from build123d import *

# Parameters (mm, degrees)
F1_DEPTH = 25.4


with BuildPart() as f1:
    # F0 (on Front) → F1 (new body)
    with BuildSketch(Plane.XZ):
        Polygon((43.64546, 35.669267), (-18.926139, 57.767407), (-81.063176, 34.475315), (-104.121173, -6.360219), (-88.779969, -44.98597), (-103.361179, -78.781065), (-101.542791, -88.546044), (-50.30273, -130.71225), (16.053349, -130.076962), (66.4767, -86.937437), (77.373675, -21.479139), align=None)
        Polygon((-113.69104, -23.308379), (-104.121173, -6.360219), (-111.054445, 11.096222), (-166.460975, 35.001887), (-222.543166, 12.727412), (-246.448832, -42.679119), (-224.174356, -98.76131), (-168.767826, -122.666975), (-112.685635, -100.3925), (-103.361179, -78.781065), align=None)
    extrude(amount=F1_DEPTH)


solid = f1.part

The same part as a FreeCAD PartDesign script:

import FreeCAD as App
import Part
import Sketcher
from FreeCAD import Vector
Q = App.Units.Quantity

doc = App.newDocument("Part")
body = doc.addObject("PartDesign::Body", "Body")
body.AllowCompound = True

sketch1 = body.newObject("Sketcher::SketchObject", "Sketch")
sketch1.AttachmentSupport = (doc.getObject("XZ_Plane"), [""])
sketch1.MapMode = "FlatFace"
sketch1.addGeometry(Part.LineSegment(Vector(43.64546, 35.669267, 0), Vector(-18.926139, 57.767407, 0)), False)
sketch1.addGeometry(Part.LineSegment(Vector(-18.926139, 57.767407, 0), Vector(-81.063176, 34.475315, 0)), False)
sketch1.addGeometry(Part.LineSegment(Vector(-81.063176, 34.475315, 0), Vector(-104.121173, -6.360219, 0)), False)
sketch1.addGeometry(Part.LineSegment(Vector(-104.121173, -6.360219, 0), Vector(-88.779969, -44.98597, 0)), False)
sketch1.addGeometry(Part.LineSegment(Vector(-88.779969, -44.98597, 0), Vector(-103.361179, -78.781065, 0)), False)
sketch1.addGeometry(Part.LineSegment(Vector(-103.361179, -78.781065, 0), Vector(-101.542791, -88.546044, 0)), False)
sketch1.addGeometry(Part.LineSegment(Vector(-101.542791, -88.546044, 0), Vector(-50.30273, -130.71225, 0)), False)
sketch1.addGeometry(Part.LineSegment(Vector(-50.30273, -130.71225, 0), Vector(16.053349, -130.076962, 0)), False)
sketch1.addGeometry(Part.LineSegment(Vector(16.053349, -130.076962, 0), Vector(66.4767, -86.937437, 0)), False)
sketch1.addGeometry(Part.LineSegment(Vector(66.4767, -86.937437, 0), Vector(77.373675, -21.479139, 0)), False)
sketch1.addGeometry(Part.LineSegment(Vector(77.373675, -21.479139, 0), Vector(43.64546, 35.669267, 0)), False)
sketch1.addGeometry(Part.LineSegment(Vector(-113.69104, -23.308379, 0), Vector(-104.121173, -6.360219, 0)), False)
sketch1.addGeometry(Part.LineSegment(Vector(-104.121173, -6.360219, 0), Vector(-111.054445, 11.096222, 0)), False)
sketch1.addGeometry(Part.LineSegment(Vector(-111.054445, 11.096222, 0), Vector(-166.460975, 35.001887, 0)), False)
sketch1.addGeometry(Part.LineSegment(Vector(-166.460975, 35.001887, 0), Vector(-222.543166, 12.727412, 0)), False)
sketch1.addGeometry(Part.LineSegment(Vector(-222.543166, 12.727412, 0), Vector(-246.448832, -42.679119, 0)), False)
sketch1.addGeometry(Part.LineSegment(Vector(-246.448832, -42.679119, 0), Vector(-224.174356, -98.76131, 0)), False)
sketch1.addGeometry(Part.LineSegment(Vector(-224.174356, -98.76131, 0), Vector(-168.767826, -122.666975, 0)), False)
sketch1.addGeometry(Part.LineSegment(Vector(-168.767826, -122.666975, 0), Vector(-112.685635, -100.3925, 0)), False)
sketch1.addGeometry(Part.LineSegment(Vector(-112.685635, -100.3925, 0), Vector(-103.361179, -78.781065, 0)), False)
sketch1.addGeometry(Part.LineSegment(Vector(-103.361179, -78.781065, 0), Vector(-113.69104, -23.308379, 0)), False)
sketch1.addConstraint(Sketcher.Constraint("Coincident", 0, 2, 1, 1))
sketch1.addConstraint(Sketcher.Constraint("Coincident", 1, 2, 2, 1))
sketch1.addConstraint(Sketcher.Constraint("Coincident", 2, 2, 3, 1))
sketch1.addConstraint(Sketcher.Constraint("Coincident", 3, 2, 4, 1))
sketch1.addConstraint(Sketcher.Constraint("Coincident", 4, 2, 5, 1))
sketch1.addConstraint(Sketcher.Constraint("Coincident", 5, 2, 6, 1))
sketch1.addConstraint(Sketcher.Constraint("Coincident", 6, 2, 7, 1))
sketch1.addConstraint(Sketcher.Constraint("Coincident", 7, 2, 8, 1))
sketch1.addConstraint(Sketcher.Constraint("Coincident", 8, 2, 9, 1))
sketch1.addConstraint(Sketcher.Constraint("Coincident", 9, 2, 10, 1))
sketch1.addConstraint(Sketcher.Constraint("Coincident", 10, 2, 0, 1))
sketch1.addConstraint(Sketcher.Constraint("Coincident", 11, 2, 12, 1))
sketch1.addConstraint(Sketcher.Constraint("Coincident", 12, 2, 13, 1))
sketch1.addConstraint(Sketcher.Constraint("Coincident", 13, 2, 14, 1))
sketch1.addConstraint(Sketcher.Constraint("Coincident", 14, 2, 15, 1))
sketch1.addConstraint(Sketcher.Constraint("Coincident", 15, 2, 16, 1))
sketch1.addConstraint(Sketcher.Constraint("Coincident", 16, 2, 17, 1))
sketch1.addConstraint(Sketcher.Constraint("Coincident", 17, 2, 18, 1))
sketch1.addConstraint(Sketcher.Constraint("Coincident", 18, 2, 19, 1))
sketch1.addConstraint(Sketcher.Constraint("Coincident", 19, 2, 20, 1))
sketch1.addConstraint(Sketcher.Constraint("Coincident", 20, 2, 11, 1))
sketch1.addConstraint(Sketcher.Constraint("Coincident", 11, 2, 2, 2))
sketch1.addConstraint(Sketcher.Constraint("Coincident", 19, 2, 4, 2))
sketch1.addConstraint(Sketcher.Constraint("DistanceX", -1, 1, 8, 2, 66.4767))
sketch1.addConstraint(Sketcher.Constraint("DistanceY", 18, 2, -1, 1, 100.3925))
sketch1.addConstraint(Sketcher.Constraint("DistanceY", 8, 2, 9, 2, 65.458298))
sketch1.addConstraint(Sketcher.Constraint("DistanceX", 0, 2, 10, 2, 62.571599))
sketch1.addConstraint(Sketcher.Constraint("DistanceX", 13, 2, 2, 2, 62.339802))
sketch1.addConstraint(Sketcher.Constraint("DistanceX", 13, 2, 1, 2, 85.397799))
sketch1.addConstraint(Sketcher.Constraint("DistanceY", 15, 2, 2, 2, 36.3189))
sketch1.addConstraint(Sketcher.Constraint("DistanceY", 20, 2, 12, 2, 34.404601))
sketch1.addConstraint(Sketcher.Constraint("Distance", 0, 66.35912))
sketch1.addConstraint(Sketcher.Constraint("Distance", 1, 66.359121))
sketch1.addConstraint(Sketcher.Constraint("Distance", 5, 9.932842))
sketch1.addConstraint(Sketcher.Constraint("Distance", 6, 66.35912))
sketch1.addConstraint(Sketcher.Constraint("Distance", 7, 66.35912))
sketch1.addConstraint(Sketcher.Constraint("Distance", 8, 66.359121))
sketch1.addConstraint(Sketcher.Constraint("Distance", 9, 66.35912))
sketch1.addConstraint(Sketcher.Constraint("Distance", 10, 66.35912))
sketch1.addConstraint(Sketcher.Constraint("Distance", 13, 60.343719))
sketch1.addConstraint(Sketcher.Constraint("Distance", 14, 60.343719))
sketch1.addConstraint(Sketcher.Constraint("Distance", 15, 60.34372))
sketch1.addConstraint(Sketcher.Constraint("Distance", 16, 60.343719))
sketch1.addConstraint(Sketcher.Constraint("Distance", 17, 60.343719))
sketch1.addConstraint(Sketcher.Constraint("Distance", 18, 60.343719))
sketch1.addConstraint(Sketcher.Constraint("Distance", 20, 56.426279))
sketch1.addConstraint(Sketcher.Constraint("DistanceX", 0, 2, -1, 1, 18.926139))
sketch1.addConstraint(Sketcher.Constraint("DistanceY", 2, 2, -1, 1, 6.360219))
sketch1.addConstraint(Sketcher.Constraint("DistanceX", 3, 2, -1, 1, 88.779969))
sketch1.addConstraint(Sketcher.Constraint("DistanceY", 3, 2, -1, 1, 44.98597))
sketch1.addConstraint(Sketcher.Constraint("DistanceX", 4, 2, -1, 1, 103.361179))
sketch1.addConstraint(Sketcher.Constraint("DistanceX", 5, 2, -1, 1, 101.542791))
sketch1.addConstraint(Sketcher.Constraint("DistanceX", 6, 2, -1, 1, 50.30273))
sketch1.addConstraint(Sketcher.Constraint("DistanceY", 6, 2, -1, 1, 130.71225))
sketch1.addConstraint(Sketcher.Constraint("DistanceX", -1, 1, 7, 2, 16.053349))
sketch1.addConstraint(Sketcher.Constraint("DistanceY", -1, 1, 12, 2, 11.096222))
sketch1.addConstraint(Sketcher.Constraint("DistanceY", -1, 1, 14, 2, 12.727412))
sketch1.addConstraint(Sketcher.Constraint("DistanceY", 16, 2, -1, 1, 98.76131))
sketch1.addConstraint(Sketcher.Constraint("DistanceY", 1, 2, 0, 2, 23.292092))
sketch1.addConstraint(Sketcher.Constraint("DistanceX", 12, 2, 1, 2, 29.991269))
sketch1.addConstraint(Sketcher.Constraint("DistanceX", 16, 2, 17, 2, 55.40653))
pad1 = body.newObject("PartDesign::Pad", "Pad")
pad1.Profile = sketch1
pad1.Length = Q("1 in")

doc.recompute()
